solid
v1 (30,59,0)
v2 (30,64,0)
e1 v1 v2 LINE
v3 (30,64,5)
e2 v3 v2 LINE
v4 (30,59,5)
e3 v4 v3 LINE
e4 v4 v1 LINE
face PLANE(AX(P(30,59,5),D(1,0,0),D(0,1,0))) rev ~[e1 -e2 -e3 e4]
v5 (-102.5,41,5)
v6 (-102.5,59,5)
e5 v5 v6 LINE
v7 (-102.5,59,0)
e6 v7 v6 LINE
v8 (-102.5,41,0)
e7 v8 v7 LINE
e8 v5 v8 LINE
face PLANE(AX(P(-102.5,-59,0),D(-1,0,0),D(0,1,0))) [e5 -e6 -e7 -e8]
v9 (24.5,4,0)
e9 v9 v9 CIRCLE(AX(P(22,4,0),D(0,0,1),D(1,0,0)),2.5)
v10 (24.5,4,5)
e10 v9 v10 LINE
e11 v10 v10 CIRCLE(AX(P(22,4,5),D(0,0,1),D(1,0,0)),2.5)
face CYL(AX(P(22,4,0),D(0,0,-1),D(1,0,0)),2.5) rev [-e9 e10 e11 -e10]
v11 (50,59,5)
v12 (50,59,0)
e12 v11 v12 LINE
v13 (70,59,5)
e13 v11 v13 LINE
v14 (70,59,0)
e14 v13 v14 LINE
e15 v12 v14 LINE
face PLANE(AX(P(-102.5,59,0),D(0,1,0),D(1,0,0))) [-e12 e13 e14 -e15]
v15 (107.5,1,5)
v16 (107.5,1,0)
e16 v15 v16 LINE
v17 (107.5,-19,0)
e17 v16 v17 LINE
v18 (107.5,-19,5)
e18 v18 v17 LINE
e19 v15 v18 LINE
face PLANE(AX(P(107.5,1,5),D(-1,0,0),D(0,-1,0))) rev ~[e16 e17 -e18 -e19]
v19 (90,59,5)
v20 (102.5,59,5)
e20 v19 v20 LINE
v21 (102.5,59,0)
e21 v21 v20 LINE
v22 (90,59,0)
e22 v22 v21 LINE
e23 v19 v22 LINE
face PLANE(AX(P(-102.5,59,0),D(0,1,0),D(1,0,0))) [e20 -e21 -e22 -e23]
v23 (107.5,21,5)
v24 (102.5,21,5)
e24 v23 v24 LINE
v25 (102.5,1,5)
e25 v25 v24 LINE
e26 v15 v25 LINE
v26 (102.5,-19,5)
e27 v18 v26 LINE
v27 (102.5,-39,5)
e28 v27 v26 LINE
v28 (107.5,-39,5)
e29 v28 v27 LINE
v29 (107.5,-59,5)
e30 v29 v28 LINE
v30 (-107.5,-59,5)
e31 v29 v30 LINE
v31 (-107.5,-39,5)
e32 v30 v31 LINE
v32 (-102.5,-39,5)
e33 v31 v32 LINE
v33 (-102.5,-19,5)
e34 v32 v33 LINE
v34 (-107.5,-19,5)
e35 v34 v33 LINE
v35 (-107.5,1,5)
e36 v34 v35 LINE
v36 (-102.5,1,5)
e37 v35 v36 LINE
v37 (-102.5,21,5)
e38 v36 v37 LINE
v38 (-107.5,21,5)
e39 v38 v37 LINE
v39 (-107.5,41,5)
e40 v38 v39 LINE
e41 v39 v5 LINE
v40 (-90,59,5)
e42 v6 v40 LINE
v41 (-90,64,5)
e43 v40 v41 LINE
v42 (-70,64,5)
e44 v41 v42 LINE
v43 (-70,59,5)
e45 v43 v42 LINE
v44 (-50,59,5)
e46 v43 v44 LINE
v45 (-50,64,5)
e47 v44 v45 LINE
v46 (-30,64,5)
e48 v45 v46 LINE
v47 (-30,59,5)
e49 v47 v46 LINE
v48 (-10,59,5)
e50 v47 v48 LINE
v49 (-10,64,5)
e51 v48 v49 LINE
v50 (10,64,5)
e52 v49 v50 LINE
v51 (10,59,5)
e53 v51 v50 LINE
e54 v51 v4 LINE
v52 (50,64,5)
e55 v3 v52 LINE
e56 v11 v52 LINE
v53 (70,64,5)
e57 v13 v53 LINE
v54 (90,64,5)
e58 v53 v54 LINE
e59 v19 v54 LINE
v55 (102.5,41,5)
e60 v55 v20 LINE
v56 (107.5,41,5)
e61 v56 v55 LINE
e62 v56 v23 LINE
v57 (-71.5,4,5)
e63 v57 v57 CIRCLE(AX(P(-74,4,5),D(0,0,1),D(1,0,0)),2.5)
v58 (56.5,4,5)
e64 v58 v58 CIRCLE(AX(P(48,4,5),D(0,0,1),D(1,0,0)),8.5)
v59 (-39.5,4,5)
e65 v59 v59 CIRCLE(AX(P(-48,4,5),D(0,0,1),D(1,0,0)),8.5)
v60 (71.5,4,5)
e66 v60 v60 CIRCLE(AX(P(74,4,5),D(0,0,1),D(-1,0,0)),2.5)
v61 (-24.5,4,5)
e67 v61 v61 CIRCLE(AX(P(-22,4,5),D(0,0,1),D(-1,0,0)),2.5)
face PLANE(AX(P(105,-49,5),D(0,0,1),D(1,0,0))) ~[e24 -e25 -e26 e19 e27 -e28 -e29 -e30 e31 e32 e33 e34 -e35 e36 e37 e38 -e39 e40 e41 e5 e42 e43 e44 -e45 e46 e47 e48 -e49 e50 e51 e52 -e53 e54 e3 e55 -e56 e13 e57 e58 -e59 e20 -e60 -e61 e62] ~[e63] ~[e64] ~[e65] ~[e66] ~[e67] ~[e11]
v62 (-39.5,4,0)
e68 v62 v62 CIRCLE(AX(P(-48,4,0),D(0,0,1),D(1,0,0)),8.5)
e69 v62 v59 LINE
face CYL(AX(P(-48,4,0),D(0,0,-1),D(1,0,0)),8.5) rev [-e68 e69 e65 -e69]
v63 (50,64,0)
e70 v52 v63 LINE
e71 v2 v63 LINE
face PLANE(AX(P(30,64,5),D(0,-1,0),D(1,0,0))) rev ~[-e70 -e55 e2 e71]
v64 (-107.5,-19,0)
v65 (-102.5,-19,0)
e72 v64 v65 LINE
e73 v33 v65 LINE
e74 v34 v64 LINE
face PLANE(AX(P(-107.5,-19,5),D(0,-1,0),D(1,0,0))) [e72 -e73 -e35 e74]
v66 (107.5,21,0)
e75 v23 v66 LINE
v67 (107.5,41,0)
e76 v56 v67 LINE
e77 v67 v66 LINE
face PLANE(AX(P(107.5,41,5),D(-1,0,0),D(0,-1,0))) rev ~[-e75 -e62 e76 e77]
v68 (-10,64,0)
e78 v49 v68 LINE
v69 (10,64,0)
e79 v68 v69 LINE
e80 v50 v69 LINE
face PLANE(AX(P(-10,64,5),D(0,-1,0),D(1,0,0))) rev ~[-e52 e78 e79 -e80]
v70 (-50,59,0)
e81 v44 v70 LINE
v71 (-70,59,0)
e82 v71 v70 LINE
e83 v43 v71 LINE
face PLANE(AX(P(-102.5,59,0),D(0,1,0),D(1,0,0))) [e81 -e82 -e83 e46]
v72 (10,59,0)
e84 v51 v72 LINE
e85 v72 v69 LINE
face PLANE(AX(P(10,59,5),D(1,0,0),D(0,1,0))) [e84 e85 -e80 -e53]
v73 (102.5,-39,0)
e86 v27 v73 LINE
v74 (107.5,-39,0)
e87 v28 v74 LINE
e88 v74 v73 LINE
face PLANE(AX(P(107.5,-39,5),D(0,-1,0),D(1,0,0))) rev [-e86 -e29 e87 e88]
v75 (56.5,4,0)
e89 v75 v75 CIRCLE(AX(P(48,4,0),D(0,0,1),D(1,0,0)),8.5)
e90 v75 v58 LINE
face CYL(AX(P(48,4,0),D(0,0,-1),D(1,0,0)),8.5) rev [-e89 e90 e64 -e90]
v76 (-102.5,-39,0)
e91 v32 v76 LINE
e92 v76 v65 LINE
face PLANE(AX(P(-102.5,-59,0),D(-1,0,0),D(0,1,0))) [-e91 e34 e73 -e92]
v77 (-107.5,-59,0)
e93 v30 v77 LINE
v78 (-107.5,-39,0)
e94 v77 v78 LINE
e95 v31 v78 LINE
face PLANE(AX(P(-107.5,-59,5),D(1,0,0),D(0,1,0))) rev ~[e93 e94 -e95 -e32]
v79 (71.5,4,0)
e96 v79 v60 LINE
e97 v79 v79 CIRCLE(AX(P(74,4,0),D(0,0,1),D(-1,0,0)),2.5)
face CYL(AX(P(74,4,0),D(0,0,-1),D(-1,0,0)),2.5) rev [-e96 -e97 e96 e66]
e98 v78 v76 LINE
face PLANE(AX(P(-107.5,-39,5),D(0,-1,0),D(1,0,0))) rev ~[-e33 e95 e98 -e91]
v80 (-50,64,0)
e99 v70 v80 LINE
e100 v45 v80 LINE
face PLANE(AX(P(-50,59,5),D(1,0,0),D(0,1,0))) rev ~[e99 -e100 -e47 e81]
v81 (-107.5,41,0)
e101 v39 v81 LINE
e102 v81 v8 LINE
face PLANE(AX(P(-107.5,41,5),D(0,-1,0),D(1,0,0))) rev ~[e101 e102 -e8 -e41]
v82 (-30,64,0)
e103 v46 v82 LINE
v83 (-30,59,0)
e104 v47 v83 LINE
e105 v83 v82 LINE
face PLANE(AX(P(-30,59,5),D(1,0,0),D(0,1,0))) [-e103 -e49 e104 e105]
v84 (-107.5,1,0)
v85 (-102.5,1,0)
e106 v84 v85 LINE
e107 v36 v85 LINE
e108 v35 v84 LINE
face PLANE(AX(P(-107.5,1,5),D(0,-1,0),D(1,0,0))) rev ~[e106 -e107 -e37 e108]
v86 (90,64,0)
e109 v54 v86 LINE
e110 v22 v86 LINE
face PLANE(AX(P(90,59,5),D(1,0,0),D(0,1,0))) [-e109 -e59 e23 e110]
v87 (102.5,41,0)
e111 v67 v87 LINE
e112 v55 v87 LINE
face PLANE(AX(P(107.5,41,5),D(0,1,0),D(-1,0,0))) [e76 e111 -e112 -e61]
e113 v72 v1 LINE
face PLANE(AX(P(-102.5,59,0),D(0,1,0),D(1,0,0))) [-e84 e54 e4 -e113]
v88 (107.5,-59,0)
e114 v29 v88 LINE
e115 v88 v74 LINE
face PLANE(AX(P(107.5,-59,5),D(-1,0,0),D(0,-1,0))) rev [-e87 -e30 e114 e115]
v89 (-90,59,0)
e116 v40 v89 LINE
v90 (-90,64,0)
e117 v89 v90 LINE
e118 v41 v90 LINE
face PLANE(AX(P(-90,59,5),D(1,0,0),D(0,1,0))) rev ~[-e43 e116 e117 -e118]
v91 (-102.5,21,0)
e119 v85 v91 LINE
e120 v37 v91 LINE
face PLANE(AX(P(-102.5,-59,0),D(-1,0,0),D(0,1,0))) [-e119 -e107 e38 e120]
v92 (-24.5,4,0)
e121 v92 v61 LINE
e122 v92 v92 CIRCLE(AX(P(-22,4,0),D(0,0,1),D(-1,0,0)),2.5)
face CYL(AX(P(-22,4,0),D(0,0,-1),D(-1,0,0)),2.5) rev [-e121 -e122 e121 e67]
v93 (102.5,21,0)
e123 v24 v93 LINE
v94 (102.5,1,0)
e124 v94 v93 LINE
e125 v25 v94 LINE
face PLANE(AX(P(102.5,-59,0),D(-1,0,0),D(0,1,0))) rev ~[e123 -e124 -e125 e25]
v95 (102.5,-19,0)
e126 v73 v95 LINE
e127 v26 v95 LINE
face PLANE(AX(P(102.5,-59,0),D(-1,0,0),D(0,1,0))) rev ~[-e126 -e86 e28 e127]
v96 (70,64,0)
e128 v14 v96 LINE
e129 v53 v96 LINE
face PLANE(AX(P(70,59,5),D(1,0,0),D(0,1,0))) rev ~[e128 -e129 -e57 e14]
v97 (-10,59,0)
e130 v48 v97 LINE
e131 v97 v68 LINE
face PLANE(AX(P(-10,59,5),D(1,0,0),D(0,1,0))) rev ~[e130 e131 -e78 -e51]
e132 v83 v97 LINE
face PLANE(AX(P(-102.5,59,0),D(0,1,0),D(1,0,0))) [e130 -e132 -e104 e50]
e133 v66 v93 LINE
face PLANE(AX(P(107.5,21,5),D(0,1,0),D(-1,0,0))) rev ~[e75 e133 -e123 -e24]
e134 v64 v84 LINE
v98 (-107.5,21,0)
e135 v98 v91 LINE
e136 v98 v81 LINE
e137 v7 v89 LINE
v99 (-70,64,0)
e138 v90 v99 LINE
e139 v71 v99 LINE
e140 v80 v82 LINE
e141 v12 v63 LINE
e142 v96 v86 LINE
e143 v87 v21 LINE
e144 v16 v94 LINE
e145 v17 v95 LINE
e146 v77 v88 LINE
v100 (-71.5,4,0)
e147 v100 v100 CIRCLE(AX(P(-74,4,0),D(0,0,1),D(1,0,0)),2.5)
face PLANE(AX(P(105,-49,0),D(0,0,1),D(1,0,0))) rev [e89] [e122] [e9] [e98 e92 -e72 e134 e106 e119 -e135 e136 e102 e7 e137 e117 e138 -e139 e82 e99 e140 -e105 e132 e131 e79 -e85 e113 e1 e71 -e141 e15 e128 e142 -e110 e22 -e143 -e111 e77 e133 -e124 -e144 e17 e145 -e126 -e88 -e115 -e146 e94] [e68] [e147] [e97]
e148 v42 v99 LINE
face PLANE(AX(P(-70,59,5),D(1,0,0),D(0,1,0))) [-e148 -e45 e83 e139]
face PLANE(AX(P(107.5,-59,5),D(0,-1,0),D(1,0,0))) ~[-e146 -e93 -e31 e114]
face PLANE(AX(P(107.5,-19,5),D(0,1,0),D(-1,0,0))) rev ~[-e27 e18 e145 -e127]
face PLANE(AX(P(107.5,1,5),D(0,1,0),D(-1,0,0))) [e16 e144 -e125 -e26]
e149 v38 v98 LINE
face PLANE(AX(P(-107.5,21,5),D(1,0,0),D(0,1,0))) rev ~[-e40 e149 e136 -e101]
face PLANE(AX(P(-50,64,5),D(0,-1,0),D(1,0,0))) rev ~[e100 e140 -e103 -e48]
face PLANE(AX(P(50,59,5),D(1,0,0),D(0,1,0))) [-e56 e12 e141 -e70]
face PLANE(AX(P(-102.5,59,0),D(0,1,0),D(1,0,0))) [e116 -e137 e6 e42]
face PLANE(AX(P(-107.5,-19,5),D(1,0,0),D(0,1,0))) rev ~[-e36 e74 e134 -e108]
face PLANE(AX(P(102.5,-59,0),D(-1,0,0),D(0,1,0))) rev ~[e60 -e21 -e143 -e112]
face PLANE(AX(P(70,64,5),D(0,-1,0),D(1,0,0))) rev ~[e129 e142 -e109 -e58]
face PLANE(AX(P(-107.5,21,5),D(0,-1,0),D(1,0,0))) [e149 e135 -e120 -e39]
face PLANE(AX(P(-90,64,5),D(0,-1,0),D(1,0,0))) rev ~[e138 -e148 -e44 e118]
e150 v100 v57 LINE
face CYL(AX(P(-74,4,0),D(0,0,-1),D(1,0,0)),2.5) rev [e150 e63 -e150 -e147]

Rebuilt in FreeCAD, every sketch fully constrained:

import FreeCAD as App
import Part
import Sketcher

V = App.Vector
Q = App.Units.Quantity

doc = App.newDocument("Part")
body = doc.addObject("PartDesign::Body", "Body")

# Sketch on XY plane
sketch1 = body.newObject("Sketcher::SketchObject", "Sketch")
sketch1.AttachmentSupport = (doc.getObject("XY_Plane"), [""])
sketch1.MapMode = "FlatFace"
sketch1.addGeometry(Part.LineSegment(V(-102.5, 59, 0), V(-102.5, -59, 0)), False)
sketch1.addGeometry(Part.LineSegment(V(-102.5, -59, 0), V(102.5, -59, 0)), False)
sketch1.addGeometry(Part.LineSegment(V(102.5, -59, 0), V(102.5, 59, 0)), False)
sketch1.addGeometry(Part.LineSegment(V(102.5, 59, 0), V(-102.5, 59, 0)), False)
sketch1.addGeometry(Part.Circle(V(-74, 4, 0), V(0, 0, 1), 2.5), False)
sketch1.addGeometry(Part.Circle(V(-48, 4, 0), V(0, 0, 1), 8.5), False)
sketch1.addGeometry(Part.Circle(V(-22, 4, 0), V(0, 0, 1), 2.5), False)
sketch1.addGeometry(Part.Circle(V(22, 4, 0), V(0, 0, 1), 2.5), False)
sketch1.addGeometry(Part.Circle(V(48, 4, 0), V(0, 0, 1), 8.5), False)
sketch1.addGeometry(Part.Circle(V(74, 4, 0), V(0, 0, 1), 2.5), False)
sketch1.addConstraint(Sketcher.Constraint("Coincident", 0, 2, 1, 1))
sketch1.addConstraint(Sketcher.Constraint("Coincident", 1, 2, 2, 1))
sketch1.addConstraint(Sketcher.Constraint("Coincident", 2, 2, 3, 1))
sketch1.addConstraint(Sketcher.Constraint("Coincident", 3, 2, 0, 1))
sketch1.addConstraint(Sketcher.Constraint("Vertical", 0))
sketch1.addConstraint(Sketcher.Constraint("Horizontal", 1))
sketch1.addConstraint(Sketcher.Constraint("Vertical", 2))
sketch1.addConstraint(Sketcher.Constraint("Horizontal", 3))
sketch1.addConstraint(Sketcher.Constraint("Equal", 4, 6))
sketch1.addConstraint(Sketcher.Constraint("Equal", 6, 7))
sketch1.addConstraint(Sketcher.Constraint("Equal", 5, 8))
sketch1.addConstraint(Sketcher.Constraint("Equal", 7, 9))
sketch1.addConstraint(Sketcher.Constraint("Symmetric", 0, 2, 2, 2, -1, 1))
sketch1.addConstraint(Sketcher.Constraint("Symmetric", 6, 3, 7, 3, -2))
sketch1.addConstraint(Sketcher.Constraint("Symmetric", 5, 3, 8, 3, -2))
sketch1.addConstraint(Sketcher.Constraint("Symmetric", 4, 3, 9, 3, -2))
sketch1.addConstraint(Sketcher.Constraint("Horizontal", 4, 3, 5, 3))
sketch1.addConstraint(Sketcher.Constraint("Horizontal", 5, 3, 6, 3))
sketch1.addConstraint(Sketcher.Constraint("Diameter", 4, Q("5 mm")))
sketch1.addConstraint(Sketcher.Constraint("Diameter", 5, Q("17 mm")))
sketch1.addConstraint(Sketcher.Constraint("DistanceX", 1, 1, 1, 2, Q("205 mm")))
sketch1.addConstraint(Sketcher.Constraint("DistanceY", 0, 2, 0, 1, Q("118 mm")))
sketch1.addConstraint(Sketcher.Constraint("DistanceX", 4, 3, -1, 1, Q("74 mm")))
sketch1.addConstraint(Sketcher.Constraint("DistanceY", -1, 1, 4, 3, Q("4 mm")))
sketch1.addConstraint(Sketcher.Constraint("DistanceX", 5, 3, -1, 1, Q("48 mm")))
sketch1.addConstraint(Sketcher.Constraint("DistanceX", 6, 3, -1, 1, Q("22 mm")))
pad1 = body.newObject("PartDesign::Pad", "Pad")
pad1.Profile = sketch1
pad1.Length = 5

# Sketch on XY plane
sketch2 = body.newObject("Sketcher::SketchObject", "Sketch001")
sketch2.AttachmentSupport = (doc.getObject("XY_Plane"), [""])
sketch2.MapMode = "FlatFace"
sketch2.AttachmentOffset = App.Placement(V(0, 0, 5), App.Rotation())
sketch2.addGeometry(Part.LineSegment(V(-108, -39, 0), V(-108, -59, 0)), False)
sketch2.addGeometry(Part.LineSegment(V(-108, -59, 0), V(-102, -59, 0)), False)
sketch2.addGeometry(Part.LineSegment(V(-102, -59, 0), V(-102, -39, 0)), False)
sketch2.addGeometry(Part.LineSegment(V(-102, -39, 0), V(-108, -39, 0)), False)
sketch2.addConstraint(Sketcher.Constraint("Coincident", 0, 2, 1, 1))
sketch2.addConstraint(Sketcher.Constraint("Coincident", 1, 2, 2, 1))
sketch2.addConstraint(Sketcher.Constraint("Coincident", 2, 2, 3, 1))
sketch2.addConstraint(Sketcher.Constraint("Coincident", 3, 2, 0, 1))
sketch2.addConstraint(Sketcher.Constraint("Vertical", 0))
sketch2.addConstraint(Sketcher.Constraint("Horizontal", 1))
sketch2.addConstraint(Sketcher.Constraint("Vertical", 2))
sketch2.addConstraint(Sketcher.Constraint("Horizontal", 3))
sketch2.addConstraint(Sketcher.Constraint("DistanceX", 1, 1, 1, 2, Q("5 mm")))
sketch2.addConstraint(Sketcher.Constraint("DistanceY", 0, 2, 0, 1, Q("20 mm")))
sketch2.addConstraint(Sketcher.Constraint("DistanceY", 0, 2, -1, 1, Q("59 mm")))
sketch2.addConstraint(Sketcher.Constraint("DistanceX", 0, 2, -1, 1, Q("107.5 mm")))
pad2 = body.newObject("PartDesign::Pad", "Pad001")
pad2.Profile = sketch2
pad2.Length = 5
pad2.Reversed = True
doc.recompute()

linearpattern = body.newObject("PartDesign::LinearPattern", "LinearPattern")
linearpattern.Originals = [pad2]
linearpattern.Direction = (doc.getObject("Y_Axis"), [""])
linearpattern.Mode = "offset"
linearpattern.Offset = 40
linearpattern.Occurrences = 3
body.Tip = linearpattern
doc.recompute()

mirrored = body.newObject("PartDesign::Mirrored", "Mirrored")
mirrored.Originals = [pad2]
mirrored.MirrorPlane = (doc.getObject("YZ_Plane"), [""])
body.Tip = mirrored

# Sketch on XY plane
sketch3 = body.newObject("Sketcher::SketchObject", "Sketch002")
sketch3.AttachmentSupport = (doc.getObject("XY_Plane"), [""])
sketch3.MapMode = "FlatFace"
sketch3.AttachmentOffset = App.Placement(V(0, 0, 5), App.Rotation())
sketch3.addGeometry(Part.LineSegment(V(108, -19, 0), V(108, 1, 0)), False)
sketch3.addGeometry(Part.LineSegment(V(108, 1, 0), V(102, 1, 0)), False)
sketch3.addGeometry(Part.LineSegment(V(102, 1, 0), V(102, -19, 0)), False)
sketch3.addGeometry(Part.LineSegment(V(102, -19, 0), V(108, -19, 0)), False)
sketch3.addConstraint(Sketcher.Constraint("Coincident", 0, 2, 1, 1))
sketch3.addConstraint(Sketcher.Constraint("Coincident", 1, 2, 2, 1))
sketch3.addConstraint(Sketcher.Constraint("Coincident", 2, 2, 3, 1))
sketch3.addConstraint(Sketcher.Constraint("Coincident", 3, 2, 0, 1))
sketch3.addConstraint(Sketcher.Constraint("Vertical", 0))
sketch3.addConstraint(Sketcher.Constraint("Horizontal", 1))
sketch3.addConstraint(Sketcher.Constraint("Vertical", 2))
sketch3.addConstraint(Sketcher.Constraint("Horizontal", 3))
sketch3.addConstraint(Sketcher.Constraint("DistanceX", 1, 2, 1, 1, Q("5 mm")))
sketch3.addConstraint(Sketcher.Constraint("DistanceY", 0, 1, 0, 2, Q("20 mm")))
sketch3.addConstraint(Sketcher.Constraint("DistanceY", -1, 1, 0, 2, Q("1 mm")))
sketch3.addConstraint(Sketcher.Constraint("DistanceX", -1, 1, 0, 2, Q("107.5 mm")))
pad3 = body.newObject("PartDesign::Pad", "Pad002")
pad3.Profile = sketch3
pad3.Length = 5
pad3.Reversed = True

# Sketch on XY plane
sketch4 = body.newObject("Sketcher::SketchObject", "Sketch003")
sketch4.AttachmentSupport = (doc.getObject("XY_Plane"), [""])
sketch4.MapMode = "FlatFace"
sketch4.AttachmentOffset = App.Placement(V(0, 0, 5), App.Rotation())
sketch4.addGeometry(Part.LineSegment(V(108, 21, 0), V(108, 41, 0)), False)
sketch4.addGeometry(Part.LineSegment(V(108, 41, 0), V(102, 41, 0)), False)
sketch4.addGeometry(Part.LineSegment(V(102, 41, 0), V(102, 21, 0)), False)
sketch4.addGeometry(Part.LineSegment(V(102, 21, 0), V(108, 21, 0)), False)
sketch4.addConstraint(Sketcher.Constraint("Coincident", 0, 2, 1, 1))
sketch4.addConstraint(Sketcher.Constraint("Coincident", 1, 2, 2, 1))
sketch4.addConstraint(Sketcher.Constraint("Coincident", 2, 2, 3, 1))
sketch4.addConstraint(Sketcher.Constraint("Coincident", 3, 2, 0, 1))
sketch4.addConstraint(Sketcher.Constraint("Vertical", 0))
sketch4.addConstraint(Sketcher.Constraint("Horizontal", 1))
sketch4.addConstraint(Sketcher.Constraint("Vertical", 2))
sketch4.addConstraint(Sketcher.Constraint("Horizontal", 3))
sketch4.addConstraint(Sketcher.Constraint("DistanceX", 1, 2, 1, 1, Q("5 mm")))
sketch4.addConstraint(Sketcher.Constraint("DistanceY", 0, 1, 0, 2, Q("20 mm")))
sketch4.addConstraint(Sketcher.Constraint("DistanceY", -1, 1, 0, 2, Q("41 mm")))
sketch4.addConstraint(Sketcher.Constraint("DistanceX", -1, 1, 0, 2, Q("107.5 mm")))
pad4 = body.newObject("PartDesign::Pad", "Pad003")
pad4.Profile = sketch4
pad4.Length = 5
pad4.Reversed = True

# Sketch on XY plane
sketch5 = body.newObject("Sketcher::SketchObject", "Sketch004")
sketch5.AttachmentSupport = (doc.getObject("XY_Plane"), [""])
sketch5.MapMode = "FlatFace"
sketch5.AttachmentOffset = App.Placement(V(0, 0, 5), App.Rotation())
sketch5.addGeometry(Part.LineSegment(V(-10, 64, 0), V(-10, 59, 0)), False)
sketch5.addGeometry(Part.LineSegment(V(-10, 59, 0), V(10, 59, 0)), False)
sketch5.addGeometry(Part.LineSegment(V(10, 59, 0), V(10, 64, 0)), False)
sketch5.addGeometry(Part.LineSegment(V(10, 64, 0), V(-10, 64, 0)), False)
sketch5.addConstraint(Sketcher.Constraint("Coincident", 0, 2, 1, 1))
sketch5.addConstraint(Sketcher.Constraint("Coincident", 1, 2, 2, 1))
sketch5.addConstraint(Sketcher.Constraint("Coincident", 2, 2, 3, 1))
sketch5.addConstraint(Sketcher.Constraint("Coincident", 3, 2, 0, 1))
sketch5.addConstraint(Sketcher.Constraint("Vertical", 0))
sketch5.addConstraint(Sketcher.Constraint("Horizontal", 1))
sketch5.addConstraint(Sketcher.Constraint("Vertical", 2))
sketch5.addConstraint(Sketcher.Constraint("Horizontal", 3))
sketch5.addConstraint(Sketcher.Constraint("DistanceX", 1, 1, 1, 2, Q("20 mm")))
sketch5.addConstraint(Sketcher.Constraint("DistanceY", 0, 2, 0, 1, Q("5 mm")))
sketch5.addConstraint(Sketcher.Constraint("DistanceX", 0, 2, -1, 1, Q("10 mm")))
sketch5.addConstraint(Sketcher.Constraint("DistanceY", -1, 1, 0, 2, Q("59 mm")))
pad5 = body.newObject("PartDesign::Pad", "Pad004")
pad5.Profile = sketch5
pad5.Length = 5
pad5.Reversed = True
doc.recompute()

linearpattern2 = body.newObject("PartDesign::LinearPattern", "LinearPattern001")
linearpattern2.Originals = [pad5]
linearpattern2.Direction = (doc.getObject("X_Axis"), [""])
linearpattern2.Mode = "offset"
linearpattern2.Offset = 40
linearpattern2.Occurrences = 3
body.Tip = linearpattern2
doc.recompute()

linearpattern3 = body.newObject("PartDesign::LinearPattern", "LinearPattern002")
linearpattern3.Originals = [pad5]
linearpattern3.Direction = (doc.getObject("X_Axis"), [""])
linearpattern3.Mode = "offset"
linearpattern3.Offset = 40
linearpattern3.Occurrences = 3
linearpattern3.Reversed = True
body.Tip = linearpattern3

doc.recompute()
